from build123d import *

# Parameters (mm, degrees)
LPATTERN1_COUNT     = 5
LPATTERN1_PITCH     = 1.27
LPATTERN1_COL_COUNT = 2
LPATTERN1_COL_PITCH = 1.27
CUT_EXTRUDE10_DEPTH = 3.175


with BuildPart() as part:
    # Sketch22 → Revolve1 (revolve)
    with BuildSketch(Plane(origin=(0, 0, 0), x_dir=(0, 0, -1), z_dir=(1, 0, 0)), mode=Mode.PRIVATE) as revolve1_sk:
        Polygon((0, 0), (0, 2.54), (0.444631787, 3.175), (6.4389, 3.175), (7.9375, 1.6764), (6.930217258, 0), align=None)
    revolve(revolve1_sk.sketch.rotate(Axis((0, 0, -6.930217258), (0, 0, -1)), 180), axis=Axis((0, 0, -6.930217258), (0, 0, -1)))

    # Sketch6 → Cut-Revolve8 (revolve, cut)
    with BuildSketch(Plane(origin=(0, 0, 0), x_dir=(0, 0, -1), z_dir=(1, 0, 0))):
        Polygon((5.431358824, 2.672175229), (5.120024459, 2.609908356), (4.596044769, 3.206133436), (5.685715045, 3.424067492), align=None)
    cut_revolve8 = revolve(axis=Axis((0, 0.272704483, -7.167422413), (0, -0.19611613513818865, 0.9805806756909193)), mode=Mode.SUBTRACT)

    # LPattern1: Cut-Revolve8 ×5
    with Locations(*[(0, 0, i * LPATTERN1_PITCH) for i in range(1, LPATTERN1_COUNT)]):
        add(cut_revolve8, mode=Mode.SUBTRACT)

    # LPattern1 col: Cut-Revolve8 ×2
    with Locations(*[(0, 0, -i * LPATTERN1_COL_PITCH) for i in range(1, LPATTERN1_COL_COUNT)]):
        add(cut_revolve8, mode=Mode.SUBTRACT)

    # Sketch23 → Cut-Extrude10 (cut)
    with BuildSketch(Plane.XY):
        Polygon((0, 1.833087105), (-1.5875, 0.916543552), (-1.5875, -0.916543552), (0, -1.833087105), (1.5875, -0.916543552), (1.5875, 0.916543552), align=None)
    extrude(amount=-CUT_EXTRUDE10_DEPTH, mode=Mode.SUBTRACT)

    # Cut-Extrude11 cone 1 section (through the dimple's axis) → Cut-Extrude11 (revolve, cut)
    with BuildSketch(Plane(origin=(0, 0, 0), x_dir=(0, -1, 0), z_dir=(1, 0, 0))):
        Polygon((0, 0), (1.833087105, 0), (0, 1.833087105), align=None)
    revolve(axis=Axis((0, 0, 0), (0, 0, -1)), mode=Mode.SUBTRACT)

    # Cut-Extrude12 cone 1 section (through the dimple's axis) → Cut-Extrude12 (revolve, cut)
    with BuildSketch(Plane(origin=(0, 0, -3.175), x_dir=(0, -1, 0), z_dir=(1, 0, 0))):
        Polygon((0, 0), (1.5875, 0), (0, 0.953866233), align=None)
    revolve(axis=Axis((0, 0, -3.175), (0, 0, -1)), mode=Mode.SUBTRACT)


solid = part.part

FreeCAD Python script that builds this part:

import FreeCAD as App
import Part
import Sketcher
Q = App.Units.Quantity

doc = App.newDocument("Part")
body = doc.addObject("PartDesign::Body", "Body")

sketch1 = body.newObject("Sketcher::SketchObject", "Sketch")
sketch1.AttachmentSupport = (doc.getObject("YZ_Plane"), [""])
sketch1.MapMode = "FlatFace"
sketch1.addGeometry(Part.LineSegment(App.Vector(2.5, 0, 0), App.Vector(0, 0, 0)), False)
sketch1.addGeometry(Part.LineSegment(App.Vector(0, 0, 0), App.Vector(0, -6.9, 0)), False)
sketch1.addGeometry(Part.LineSegment(App.Vector(0, -6.9, 0), App.Vector(1.7, -7.9, 0)), False)
sketch1.addGeometry(Part.LineSegment(App.Vector(1.7, -7.9, 0), App.Vector(3.2, -6.4, 0)), False)
sketch1.addGeometry(Part.LineSegment(App.Vector(3.2, -6.4, 0), App.Vector(3.2, -0.4, 0)), False)
sketch1.addGeometry(Part.LineSegment(App.Vector(3.2, -0.4, 0), App.Vector(2.5, 0, 0)), False)
sketch1.addConstraint(Sketcher.Constraint("Coincident", 0, 2, 1, 1))
sketch1.addConstraint(Sketcher.Constraint("Coincident", 1, 2, 2, 1))
sketch1.addConstraint(Sketcher.Constraint("Coincident", 2, 2, 3, 1))
sketch1.addConstraint(Sketcher.Constraint("Coincident", 3, 2, 4, 1))
sketch1.addConstraint(Sketcher.Constraint("Coincident", 4, 2, 5, 1))
sketch1.addConstraint(Sketcher.Constraint("Coincident", 5, 2, 0, 1))
sketch1.addConstraint(Sketcher.Constraint("Horizontal", 0))
sketch1.addConstraint(Sketcher.Constraint("Vertical", 1))
sketch1.addConstraint(Sketcher.Constraint("Vertical", 4))
sketch1.addConstraint(Sketcher.Constraint("Coincident", 0, 2, -1, 1))
sketch1.addConstraint(Sketcher.Constraint("DistanceX", 0, 2, 0, 1, Q("0.1 in")))
sketch1.addConstraint(Sketcher.Constraint("Angle", 2, Q("-31 deg")))
sketch1.addConstraint(Sketcher.Constraint("Angle", 3, Q("45 deg")))
sketch1.addConstraint(Sketcher.Constraint("Angle", 5, Q("145 deg")))
sketch1.addConstraint(Sketcher.Constraint("DistanceX", -1, 1, 2, 2, Q("0.066 in")))
sketch1.addConstraint(Sketcher.Constraint("DistanceY", 2, 2, -1, 1, Q("0.3125 in")))
sketch1.addConstraint(Sketcher.Constraint("DistanceX", -1, 1, 3, 2, Q("0.125 in")))
revolution = body.newObject("PartDesign::Revolution", "Revolution")
revolution.Profile = sketch1
revolution.ReferenceAxis = (sketch1, ["V_Axis"])
revolution.Angle = 360

sketch2 = body.newObject("Sketcher::SketchObject", "Sketch001")
sketch2.AttachmentSupport = (doc.getObject("YZ_Plane"), [""])
sketch2.MapMode = "FlatFace"
sketch2.addGeometry(Part.LineSegment(App.Vector(2.61, -5.12, 0), App.Vector(2.67, -5.43, 0)), False)
sketch2.addGeometry(Part.LineSegment(App.Vector(2.67, -5.43, 0), App.Vector(3.42, -5.69, 0)), False)
sketch2.addGeometry(Part.LineSegment(App.Vector(3.42, -5.69, 0), App.Vector(3.21, -4.6, 0)), False)
sketch2.addGeometry(Part.LineSegment(App.Vector(3.21, -4.6, 0), App.Vector(2.61, -5.12, 0)), False)
sketch2.addGeometry(Part.LineSegment(App.Vector(0.11, -6.35, 0), App.Vector(-0.11, -5.26, 0)), True)
sketch2.addConstraint(Sketcher.Constraint("Coincident", 0, 2, 1, 1))
sketch2.addConstraint(Sketcher.Constraint("Coincident", 1, 2, 2, 1))
sketch2.addConstraint(Sketcher.Constraint("Coincident", 2, 2, 3, 1))
sketch2.addConstraint(Sketcher.Constraint("Coincident", 3, 2, 0, 1))
sketch2.addConstraint(Sketcher.Constraint("Parallel", 0, 2))
sketch2.addConstraint(Sketcher.Constraint("Parallel", 2, 4))
sketch2.addConstraint(Sketcher.Constraint("Equal", 1, 3))
sketch2.addConstraint(Sketcher.Constraint("Equal", 2, 4))
sketch2.addConstraint(Sketcher.Constraint("Distance", 1, Q("0.03125 in")))
sketch2.addConstraint(Sketcher.Constraint("Distance", 0, Q("0.0125 in")))
sketch2.addConstraint(Sketcher.Constraint("DistanceX", 4, 1, 1, 2, Q("3.3151 mm")))
sketch2.addConstraint(Sketcher.Constraint("Distance", 2, Q("1.11125 mm")))
sketch2.addConstraint(Sketcher.Constraint("DistanceY", 0, 2, -1, 1, Q("5.431359 mm")))
sketch2.addConstraint(Sketcher.Constraint("DistanceX", -1, 1, 3, 2, Q("2.609908 mm")))
sketch2.addConstraint(Sketcher.Constraint("DistanceX", 0, 2, 2, 2, Q("0.533958 mm")))
sketch2.addConstraint(Sketcher.Constraint("DistanceY", 4, 1, 3, 2, Q("1.228711 mm")))
groove = body.newObject("PartDesign::Groove", "Groove")
groove.Profile = sketch2
groove.ReferenceAxis = (sketch2, ["Axis0"])
groove.Angle = 360
doc.recompute()

linearpattern = body.newObject("PartDesign::LinearPattern", "LinearPattern")
linearpattern.Originals = [groove]
linearpattern.Direction = (doc.getObject("Z_Axis"), [""])
linearpattern.Mode = "offset"
linearpattern.Offset = Q("0.05 in")
linearpattern.Occurrences = 5
body.Tip = linearpattern
doc.recompute()

linearpattern2 = body.newObject("PartDesign::LinearPattern", "LinearPattern001")
linearpattern2.Originals = [groove]
linearpattern2.Direction = (doc.getObject("Z_Axis"), [""])
linearpattern2.Mode = "offset"
linearpattern2.Offset = Q("0.05 in")
linearpattern2.Occurrences = 2
linearpattern2.Reversed = True
body.Tip = linearpattern2

sketch3 = body.newObject("Sketcher::SketchObject", "Sketch002")
sketch3.AttachmentSupport = (doc.getObject("XY_Plane"), [""])
sketch3.MapMode = "FlatFace"
sketch3.addGeometry(Part.LineSegment(App.Vector(0, 1.8, 0), App.Vector(-1.6, 0.9, 0)), False)
sketch3.addGeometry(Part.LineSegment(App.Vector(-1.6, 0.9, 0), App.Vector(-1.6, -0.9, 0)), False)
sketch3.addGeometry(Part.LineSegment(App.Vector(-1.6, -0.9, 0), App.Vector(0, -1.8, 0)), False)
sketch3.addGeometry(Part.LineSegment(App.Vector(0, -1.8, 0), App.Vector(1.6, -0.9, 0)), False)
sketch3.addGeometry(Part.LineSegment(App.Vector(1.6, -0.9, 0), App.Vector(1.6, 0.9, 0)), False)
sketch3.addGeometry(Part.LineSegment(App.Vector(1.6, 0.9, 0), App.Vector(0, 1.8, 0)), False)
sketch3.addConstraint(Sketcher.Constraint("Coincident", 0, 2, 1, 1))
sketch3.addConstraint(Sketcher.Constraint("Coincident", 1, 2, 2, 1))
sketch3.addConstraint(Sketcher.Constraint("Coincident", 2, 2, 3, 1))
sketch3.addConstraint(Sketcher.Constraint("Coincident", 3, 2, 4, 1))
sketch3.addConstraint(Sketcher.Constraint("Coincident", 4, 2, 5, 1))
sketch3.addConstraint(Sketcher.Constraint("Coincident", 5, 2, 0, 1))
sketch3.addConstraint(Sketcher.Constraint("Vertical", 1))
sketch3.addConstraint(Sketcher.Constraint("Vertical", 4))
sketch3.addConstraint(Sketcher.Constraint("Symmetric", 0, 2, 3, 2, -1, 1))
sketch3.addConstraint(Sketcher.Constraint("Symmetric", 2, 2, 5, 2, -1, 1))
sketch3.addConstraint(Sketcher.Constraint("PointOnObject", 2, 2, -2))
sketch3.addConstraint(Sketcher.Constraint("Parallel", 2, 5))
sketch3.addConstraint(Sketcher.Constraint("Horizontal", 1, 2, 3, 2))
sketch3.addConstraint(Sketcher.Constraint("Angle", 0, Q("-150 deg")))
sketch3.addConstraint(Sketcher.Constraint("DistanceX", 0, 2, -1, 1, Q("0.0625 in")))
sketch3.addConstraint(Sketcher.Constraint("DistanceY", 1, 2, 1, 1, Q("1.833087 mm")))
pocket1 = body.newObject("PartDesign::Pocket", "Pocket")
pocket1.Profile = sketch3
pocket1.Length = Q("0.125 in")

sketch4 = body.newObject("Sketcher::SketchObject", "Sketch003")
sketch4.AttachmentSupport = (doc.getObject("YZ_Plane"), [""])
sketch4.MapMode = "FlatFace"
sketch4.addGeometry(Part.LineSegment(App.Vector(0, 0, 0), App.Vector(-1.8, 0, 0)), False)
sketch4.addGeometry(Part.LineSegment(App.Vector(-1.8, 0, 0), App.Vector(0, -1.8, 0)), False)
sketch4.addGeometry(Part.LineSegment(App.Vector(0, -1.8, 0), App.Vector(0, 0, 0)), False)
sketch4.addConstraint(Sketcher.Constraint("Coincident", 0, 2, 1, 1))
sketch4.addConstraint(Sketcher.Constraint("Coincident", 1, 2, 2, 1))
sketch4.addConstraint(Sketcher.Constraint("Coincident", 2, 2, 0, 1))
sketch4.addConstraint(Sketcher.Constraint("Horizontal", 0))
sketch4.addConstraint(Sketcher.Constraint("Vertical", 2))
sketch4.addConstraint(Sketcher.Constraint("Coincident", 2, 2, -1, 1))
sketch4.addConstraint(Sketcher.Constraint("Equal", 0, 2))
sketch4.addConstraint(Sketcher.Constraint("DistanceX", 0, 2, 0, 1, Q("1.833087 mm")))
groove2 = body.newObject("PartDesign::Groove", "Groove001")
groove2.Profile = sketch4
groove2.ReferenceAxis = (sketch4, ["V_Axis"])
groove2.Angle = 360

sketch5 = body.newObject("Sketcher::SketchObject", "Sketch004")
sketch5.AttachmentSupport = (doc.getObject("YZ_Plane"), [""])
sketch5.MapMode = "FlatFace"
sketch5.addGeometry(Part.LineSegment(App.Vector(0, -3.2, 0), App.Vector(-1.6, -3.2, 0)), False)
sketch5.addGeometry(Part.LineSegment(App.Vector(-1.6, -3.2, 0), App.Vector(0, -4.1, 0)), False)
sketch5.addGeometry(Part.LineSegment(App.Vector(0, -4.1, 0), App.Vector(0, -3.2, 0)), False)
sketch5.addConstraint(Sketcher.Constraint("Coincident", 0, 2, 1, 1))
sketch5.addConstraint(Sketcher.Constraint("Coincident", 1, 2, 2, 1))
sketch5.addConstraint(Sketcher.Constraint("Coincident", 2, 2, 0, 1))
sketch5.addConstraint(Sketcher.Constraint("Horizontal", 0))
sketch5.addConstraint(Sketcher.Constraint("Vertical", 2))
sketch5.addConstraint(Sketcher.Constraint("PointOnObject", 1, 2, -2))
sketch5.addConstraint(Sketcher.Constraint("Angle", 1, Q("-31 deg")))
sketch5.addConstraint(Sketcher.Constraint("DistanceX", 0, 2, 0, 1, Q("0.0625 in")))
sketch5.addConstraint(Sketcher.Constraint("DistanceY", 0, 2, -1, 1, Q("0.125 in")))
groove3 = body.newObject("PartDesign::Groove", "Groove002")
groove3.Profile = sketch5
groove3.ReferenceAxis = (sketch5, ["V_Axis"])
groove3.Angle = 360

doc.recompute()
